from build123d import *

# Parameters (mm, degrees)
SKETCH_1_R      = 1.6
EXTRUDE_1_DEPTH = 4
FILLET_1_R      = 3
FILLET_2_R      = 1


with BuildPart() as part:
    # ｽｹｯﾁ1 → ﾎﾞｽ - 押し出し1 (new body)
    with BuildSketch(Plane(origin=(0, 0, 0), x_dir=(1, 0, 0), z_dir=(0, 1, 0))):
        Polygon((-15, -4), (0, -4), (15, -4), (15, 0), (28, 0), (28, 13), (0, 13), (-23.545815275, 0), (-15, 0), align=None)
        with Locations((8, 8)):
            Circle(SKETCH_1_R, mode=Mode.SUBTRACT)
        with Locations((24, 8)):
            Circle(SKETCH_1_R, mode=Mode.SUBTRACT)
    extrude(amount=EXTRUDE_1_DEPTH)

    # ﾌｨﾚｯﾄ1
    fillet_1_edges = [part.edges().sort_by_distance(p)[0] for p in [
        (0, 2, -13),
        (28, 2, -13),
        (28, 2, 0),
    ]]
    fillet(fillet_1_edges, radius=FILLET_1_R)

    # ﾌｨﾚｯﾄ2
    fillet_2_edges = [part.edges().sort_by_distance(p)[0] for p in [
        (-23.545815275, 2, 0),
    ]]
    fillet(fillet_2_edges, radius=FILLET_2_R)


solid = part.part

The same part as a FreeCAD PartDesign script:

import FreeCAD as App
import Part
import Sketcher
from FreeCAD import Vector


def edges_at(feature, points):
    """Names of the edges that pass closest to the given points."""
    edges = feature.Shape.Edges
    near = lambda p: min(range(len(edges)), key=lambda i: edges[i].distToShape(Part.Vertex(*p))[0])
    return sorted({f"Edge{near(p) + 1}" for p in points})

doc = App.newDocument("Part")
body = doc.addObject("PartDesign::Body", "Body")

# Sketch on XZ plane
sketch1 = body.newObject("Sketcher::SketchObject", "Sketch")
sketch1.AttachmentSupport = (doc.getObject("XZ_Plane"), [""])
sketch1.MapMode = "FlatFace"
sketch1.addGeometry([
    Part.LineSegment(Vector(-15, 4, 0), Vector(15, 4, 0)),  # 0
    Part.LineSegment(Vector(15, 4, 0), Vector(15, 0, 0)),  # 1
    Part.LineSegment(Vector(15, 0, 0), Vector(28, 0, 0)),  # 2
    Part.LineSegment(Vector(28, 0, 0), Vector(28, -13, 0)),  # 3
    Part.LineSegment(Vector(28, -13, 0), Vector(0, -13, 0)),  # 4
    Part.LineSegment(Vector(0, -13, 0), Vector(-23.5, 0, 0)),  # 5
    Part.LineSegment(Vector(-23.5, 0, 0), Vector(-15, 0, 0)),  # 6
    Part.LineSegment(Vector(-15, 0, 0), Vector(-15, 4, 0)),  # 7
    Part.Circle(Vector(8, -8, 0), Vector(0, 0, 1), 1.6),  # 8
    Part.Circle(Vector(24, -8, 0), Vector(0, 0, 1), 1.6),  # 9
], False)
sketch1.addConstraint([
    Sketcher.Constraint("Coincident", 0, 2, 1, 1),
    Sketcher.Constraint("Coincident", 1, 2, 2, 1),
    Sketcher.Constraint("Coincident", 2, 2, 3, 1),
    Sketcher.Constraint("Coincident", 3, 2, 4, 1),
    Sketcher.Constraint("Coincident", 4, 2, 5, 1),
    Sketcher.Constraint("Coincident", 5, 2, 6, 1),
    Sketcher.Constraint("Coincident", 6, 2, 7, 1),
    Sketcher.Constraint("Coincident", 7, 2, 0, 1),
    Sketcher.Constraint("Horizontal", 0),
    Sketcher.Constraint("Vertical", 1),
    Sketcher.Constraint("Horizontal", 2),
    Sketcher.Constraint("Vertical", 3),
    Sketcher.Constraint("Horizontal", 4),
    Sketcher.Constraint("Horizontal", 6),
    Sketcher.Constraint("Vertical", 7),
    Sketcher.Constraint("Equal", 8, 9),
    Sketcher.Constraint("Symmetric", 1, 2, 6, 2, -1, 1),
    Sketcher.Constraint("PointOnObject", 1, 2, -1),
    Sketcher.Constraint("PointOnObject", 4, 2, -2),
    Sketcher.Constraint("Horizontal", 8, 3, 9, 3),
    Sketcher.Constraint("Equal", 2, 3),
    Sketcher.Constraint("Diameter", 8, 3.2),
    Sketcher.Constraint("DistanceX", 0, 1, 0, 2, 30.0),
    Sketcher.Constraint("DistanceX", 2, 1, 2, 2, 13.0),
    Sketcher.Constraint("DistanceY", 1, 2, 1, 1, 4.0),
    Sketcher.Constraint("DistanceX", -1, 1, 8, 3, 8.0),
    Sketcher.Constraint("DistanceY", 8, 3, -1, 1, 8.0),
    Sketcher.Constraint("DistanceX", -1, 1, 9, 3, 24.0),
    Sketcher.Constraint("DistanceX", 6, 1, 6, 2, 8.545815),
])
pad1 = body.newObject("PartDesign::Pad", "Pad")
pad1.Profile = sketch1
pad1.Length = 4
pad1.Reversed = True
doc.recompute()

fillet = body.newObject("PartDesign::Fillet", "Fillet")
fillet.Base = (pad1, edges_at(pad1, [(0, 2, -13), (28, 2, -13), (28, 2, 0)]))
fillet.Radius = 3
doc.recompute()

fillet2 = body.newObject("PartDesign::Fillet", "Fillet001")
fillet2.Base = (fillet, edges_at(fillet, [(-23.546, 2, 0)]))
fillet2.Radius = 1

doc.recompute()
